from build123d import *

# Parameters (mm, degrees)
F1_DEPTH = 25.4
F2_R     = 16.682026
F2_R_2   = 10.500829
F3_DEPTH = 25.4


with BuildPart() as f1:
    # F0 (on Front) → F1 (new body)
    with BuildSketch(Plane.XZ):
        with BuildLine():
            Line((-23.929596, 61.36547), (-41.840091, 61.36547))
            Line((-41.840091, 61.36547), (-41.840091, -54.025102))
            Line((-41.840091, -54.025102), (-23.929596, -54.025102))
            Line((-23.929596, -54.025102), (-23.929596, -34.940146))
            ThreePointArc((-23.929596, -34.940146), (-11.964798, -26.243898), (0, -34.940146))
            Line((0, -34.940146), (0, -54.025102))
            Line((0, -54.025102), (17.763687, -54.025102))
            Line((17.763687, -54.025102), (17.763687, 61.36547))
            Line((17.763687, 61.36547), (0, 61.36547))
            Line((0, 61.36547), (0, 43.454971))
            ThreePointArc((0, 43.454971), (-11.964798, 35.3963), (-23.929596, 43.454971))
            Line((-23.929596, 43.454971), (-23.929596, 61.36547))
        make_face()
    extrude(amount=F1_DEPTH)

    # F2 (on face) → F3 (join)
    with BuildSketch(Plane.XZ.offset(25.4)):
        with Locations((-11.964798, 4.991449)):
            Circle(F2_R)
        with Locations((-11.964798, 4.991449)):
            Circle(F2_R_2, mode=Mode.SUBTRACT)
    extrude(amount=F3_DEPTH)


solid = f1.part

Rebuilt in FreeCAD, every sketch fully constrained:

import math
import FreeCAD as App
import Part
import Sketcher
Q = App.Units.Quantity

doc = App.newDocument("Part")
body = doc.addObject("PartDesign::Body", "Body")

sketch1 = body.newObject("Sketcher::SketchObject", "Sketch")
sketch1.AttachmentSupport = (doc.getObject("XZ_Plane"), [""])
sketch1.MapMode = "FlatFace"
sketch1.addGeometry([
    Part.LineSegment(App.Vector(-24, 61, 0), App.Vector(-42, 61, 0)),
    Part.LineSegment(App.Vector(-42, 61, 0), App.Vector(-42, -54, 0)),
    Part.LineSegment(App.Vector(-42, -54, 0), App.Vector(-24, -54, 0)),
    Part.LineSegment(App.Vector(-24, -54, 0), App.Vector(-24, -35, 0)),
    Part.ArcOfCircle(Part.Circle(App.Vector(-12, -39, 0), App.Vector(0, 0, 1), 13), math.radians(18), math.radians(162)),
    Part.LineSegment(App.Vector(0, -35, 0), App.Vector(0, -54, 0)),
    Part.LineSegment(App.Vector(0, -54, 0), App.Vector(18, -54, 0)),
    Part.LineSegment(App.Vector(18, -54, 0), App.Vector(18, 61, 0)),
    Part.LineSegment(App.Vector(18, 61, 0), App.Vector(0, 61, 0)),
    Part.LineSegment(App.Vector(0, 61, 0), App.Vector(0, 43, 0)),
    Part.ArcOfCircle(Part.Circle(App.Vector(-12, 48, 0), App.Vector(0, 0, 1), 13), math.radians(-158), math.radians(-22)),
    Part.LineSegment(App.Vector(-24, 43, 0), App.Vector(-24, 61, 0)),
], False)
sketch1.addConstraint([
    Sketcher.Constraint("Coincident", 0, 2, 1, 1),
    Sketcher.Constraint("Coincident", 1, 2, 2, 1),
    Sketcher.Constraint("Coincident", 2, 2, 3, 1),
    Sketcher.Constraint("Coincident", 3, 2, 4, 2),
    Sketcher.Constraint("Coincident", 4, 1, 5, 1),
    Sketcher.Constraint("Coincident", 5, 2, 6, 1),
    Sketcher.Constraint("Coincident", 6, 2, 7, 1),
    Sketcher.Constraint("Coincident", 7, 2, 8, 1),
    Sketcher.Constraint("Coincident", 8, 2, 9, 1),
    Sketcher.Constraint("Coincident", 9, 2, 10, 2),
    Sketcher.Constraint("Coincident", 10, 1, 11, 1),
    Sketcher.Constraint("Coincident", 11, 2, 0, 1),
    Sketcher.Constraint("Horizontal", 0),
    Sketcher.Constraint("Vertical", 1),
    Sketcher.Constraint("Horizontal", 2),
    Sketcher.Constraint("Vertical", 3),
    Sketcher.Constraint("Vertical", 5),
    Sketcher.Constraint("Horizontal", 6),
    Sketcher.Constraint("Vertical", 7),
    Sketcher.Constraint("Horizontal", 8),
    Sketcher.Constraint("Vertical", 9),
    Sketcher.Constraint("Vertical", 11),
    Sketcher.Constraint("PointOnObject", 4, 1, -2),
    Sketcher.Constraint("PointOnObject", 8, 2, -2),
    Sketcher.Constraint("Horizontal", 3, 2, 4, 1),
    Sketcher.Constraint("Horizontal", 2, 2, 5, 2),
    Sketcher.Constraint("Horizontal", 0, 2, 7, 2),
    Sketcher.Constraint("Horizontal", 9, 2, 10, 1),
    Sketcher.Constraint("Vertical", 4, 3, 10, 3),
    Sketcher.Constraint("Radius", 10, 12.911469),
    Sketcher.Constraint("DistanceY", 9, 2, 9, 1, 17.910499),
    Sketcher.Constraint("Radius", 4, 12.579053),
    Sketcher.Constraint("DistanceY", 1, 2, 1, 1, 115.390572),
    Sketcher.Constraint("DistanceY", 1, 2, -1, 1, 54.025102),
    Sketcher.Constraint("DistanceY", 10, 3, 0, 2, 13.057701),
    Sketcher.Constraint("DistanceX", 0, 2, 0, 1, 17.910495),
    Sketcher.Constraint("DistanceX", 6, 1, 6, 2, 17.763687),
    Sketcher.Constraint("DistanceY", 3, 1, 3, 2, 19.084956),
])
pad1 = body.newObject("PartDesign::Pad", "Pad")
pad1.Profile = sketch1
pad1.Length = Q("1 in")

sketch2 = body.newObject("Sketcher::SketchObject", "Sketch001")
sketch2.AttachmentSupport = (doc.getObject("XZ_Plane"), [""])
sketch2.MapMode = "FlatFace"
sketch2.AttachmentOffset = App.Placement(App.Vector(0, 0, 1 * 25.4), App.Rotation())
sketch2.addGeometry([
    Part.Circle(App.Vector(-12, 5, 0), App.Vector(0, 0, 1), 17),
    Part.Circle(App.Vector(-12, 5, 0), App.Vector(0, 0, 1), 11),
], False)
sketch2.addConstraint([
    Sketcher.Constraint("Coincident", 1, 3, 0, 3),
    Sketcher.Constraint("Diameter", 0, 33.364052),
    Sketcher.Constraint("Diameter", 1, 21.001658),
    Sketcher.Constraint("DistanceY", -1, 1, 0, 3, 4.991449),
    Sketcher.Constraint("DistanceX", 0, 3, -1, 1, 11.964798),
])
pad2 = body.newObject("PartDesign::Pad", "Pad001")
pad2.Profile = sketch2
pad2.Length = Q("1 in")

doc.recompute()
